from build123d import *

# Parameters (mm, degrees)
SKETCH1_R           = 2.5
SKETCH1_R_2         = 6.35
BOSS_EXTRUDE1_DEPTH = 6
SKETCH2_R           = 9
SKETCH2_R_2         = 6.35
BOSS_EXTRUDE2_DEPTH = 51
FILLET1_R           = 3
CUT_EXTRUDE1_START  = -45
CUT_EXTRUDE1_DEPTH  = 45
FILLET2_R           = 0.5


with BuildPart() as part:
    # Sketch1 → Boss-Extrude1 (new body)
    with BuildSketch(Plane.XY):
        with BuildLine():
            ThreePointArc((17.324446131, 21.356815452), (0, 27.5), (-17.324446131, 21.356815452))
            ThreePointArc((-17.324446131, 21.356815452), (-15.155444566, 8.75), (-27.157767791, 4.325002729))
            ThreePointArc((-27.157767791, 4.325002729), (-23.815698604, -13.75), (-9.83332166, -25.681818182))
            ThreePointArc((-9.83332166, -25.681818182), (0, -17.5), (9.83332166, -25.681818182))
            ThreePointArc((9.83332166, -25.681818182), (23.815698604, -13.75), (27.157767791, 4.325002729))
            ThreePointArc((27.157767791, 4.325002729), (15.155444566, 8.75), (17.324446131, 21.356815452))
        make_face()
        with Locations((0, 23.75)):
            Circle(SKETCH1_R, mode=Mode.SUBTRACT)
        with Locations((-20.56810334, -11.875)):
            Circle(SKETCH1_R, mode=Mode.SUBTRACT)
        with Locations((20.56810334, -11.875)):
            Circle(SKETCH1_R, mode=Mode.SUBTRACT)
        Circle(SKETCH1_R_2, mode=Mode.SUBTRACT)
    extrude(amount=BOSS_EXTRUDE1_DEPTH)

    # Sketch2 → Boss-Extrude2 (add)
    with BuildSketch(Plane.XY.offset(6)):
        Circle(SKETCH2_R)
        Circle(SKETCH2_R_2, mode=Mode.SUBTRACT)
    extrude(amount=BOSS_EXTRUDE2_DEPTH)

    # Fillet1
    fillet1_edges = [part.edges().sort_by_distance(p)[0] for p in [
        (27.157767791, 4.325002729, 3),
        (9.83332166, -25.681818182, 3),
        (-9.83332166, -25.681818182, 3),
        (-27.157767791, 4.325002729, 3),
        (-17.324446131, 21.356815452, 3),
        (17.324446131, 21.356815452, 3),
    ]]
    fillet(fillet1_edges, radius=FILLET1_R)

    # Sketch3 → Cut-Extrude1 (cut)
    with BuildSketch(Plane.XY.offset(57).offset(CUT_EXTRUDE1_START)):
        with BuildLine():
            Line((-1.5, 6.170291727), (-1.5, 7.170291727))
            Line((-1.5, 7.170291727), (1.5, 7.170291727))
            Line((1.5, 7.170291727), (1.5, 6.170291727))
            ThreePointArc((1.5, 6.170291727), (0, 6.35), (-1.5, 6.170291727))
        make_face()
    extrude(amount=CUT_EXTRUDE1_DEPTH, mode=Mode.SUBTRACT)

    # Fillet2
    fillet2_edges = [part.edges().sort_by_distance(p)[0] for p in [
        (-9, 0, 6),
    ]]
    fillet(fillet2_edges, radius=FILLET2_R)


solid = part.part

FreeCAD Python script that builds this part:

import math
import FreeCAD as App
import Part
import Sketcher
Q = App.Units.Quantity


def edges_at(feature, points):
    """Names of the edges that pass closest to the given points."""
    edges = feature.Shape.Edges
    near = lambda p: min(range(len(edges)), key=lambda i: edges[i].distToShape(Part.Vertex(*p))[0])
    return sorted({f"Edge{near(p) + 1}" for p in points})

doc = App.newDocument("Part")
params = doc.addObject("Spreadsheet::Sheet", "Params")
for row, (alias, value) in enumerate([
    ("sketch1_diameter", "5 mm"),
    ("sketch1_radius", "10 mm"),
    ("sketch1_diameter2", "12.7 mm"),
    ("sketch1_radius2", "27.5 mm"),
    ("pad1_length", "6 mm"),
    ("sketch2_diameter", "18 mm"),
    ("sketch2_diameter2", "12.7 mm"),
    ("pad2_length", "51 mm"),
    ("fillet_radius", "3 mm"),
    ("sketch3_width", "3 mm"),
    ("sketch3_height", "1 mm"),
    ("sketch3_radius", "6.35 mm"),
    ("pocket1_length", "45 mm"),
    ("fillet2_radius", "0.5 mm"),
], start=1):
    params.set(f"A{row}", alias)
    params.set(f"B{row}", "=" + value)
    params.setAlias(f"B{row}", alias)

body = doc.addObject("PartDesign::Body", "Body")

# Sketch on XY plane
sketch1 = doc.addObject("Sketcher::SketchObject", "Sketch")
body.addObject(sketch1)
sketch1.AttachmentSupport = (doc.XY_Plane, [""])
sketch1.MapMode = "FlatFace"
sketch1.addGeometry(Part.ArcOfCircle(Part.Circle(App.Vector(0, 0, 0), App.Vector(0, 0, 1), 27.5), math.radians(51), math.radians(129)), False)
sketch1.addGeometry(Part.ArcOfCircle(Part.Circle(App.Vector(-23.8, 13.7, 0), App.Vector(0, 0, 1), 10), math.radians(-110), math.radians(50)), False)
sketch1.addGeometry(Part.ArcOfCircle(Part.Circle(App.Vector(0, 0, 0), App.Vector(0, 0, 1), 27.5), math.radians(171), math.radians(249)), False)
sketch1.addGeometry(Part.ArcOfCircle(Part.Circle(App.Vector(0, -27.5, 0), App.Vector(0, 0, 1), 10), math.radians(10), math.radians(170)), False)
sketch1.addGeometry(Part.ArcOfCircle(Part.Circle(App.Vector(0, 0, 0), App.Vector(0, 0, 1), 27.5), math.radians(-69), math.radians(9)), False)
sketch1.addGeometry(Part.ArcOfCircle(Part.Circle(App.Vector(23.8, 13.7, 0), App.Vector(0, 0, 1), 10), math.radians(130), math.radians(290)), False)
sketch1.addGeometry(Part.Circle(App.Vector(-20.6, -11.9, 0), App.Vector(0, 0, 1), 2.5), False)
sketch1.addGeometry(Part.Circle(App.Vector(20.6, -11.9, 0), App.Vector(0, 0, 1), 2.5), False)
sketch1.addGeometry(Part.Circle(App.Vector(0, 0, 0), App.Vector(0, 0, 1), 6.3), False)
sketch1.addGeometry(Part.Circle(App.Vector(0, 23.8, 0), App.Vector(0, 0, 1), 2.5), False)
sketch1.addConstraint(Sketcher.Constraint("Coincident", 0, 2, 1, 2))
sketch1.addConstraint(Sketcher.Constraint("Coincident", 1, 1, 2, 1))
sketch1.addConstraint(Sketcher.Constraint("Coincident", 2, 2, 3, 2))
sketch1.addConstraint(Sketcher.Constraint("Coincident", 3, 1, 4, 1))
sketch1.addConstraint(Sketcher.Constraint("Coincident", 4, 2, 5, 2))
sketch1.addConstraint(Sketcher.Constraint("Coincident", 5, 1, 0, 1))
sketch1.addConstraint(Sketcher.Constraint("Coincident", 0, 3, -1, 1))
sketch1.addConstraint(Sketcher.Constraint("Coincident", 2, 3, -1, 1))
sketch1.addConstraint(Sketcher.Constraint("Coincident", 4, 3, -1, 1))
sketch1.addConstraint(Sketcher.Constraint("Coincident", 8, 3, -1, 1))
sketch1.addConstraint(Sketcher.Constraint("Equal", 0, 2))
sketch1.addConstraint(Sketcher.Constraint("Equal", 1, 3))
sketch1.addConstraint(Sketcher.Constraint("Equal", 2, 4))
sketch1.addConstraint(Sketcher.Constraint("Equal", 3, 5))
sketch1.addConstraint(Sketcher.Constraint("Equal", 6, 7))
sketch1.addConstraint(Sketcher.Constraint("Equal", 7, 9))
sketch1.addConstraint(Sketcher.Constraint("Symmetric", 1, 3, 5, 3, -2))
sketch1.addConstraint(Sketcher.Constraint("Symmetric", 6, 3, 7, 3, -2))
sketch1.addConstraint(Sketcher.Constraint("PointOnObject", 3, 3, -2))
sketch1.addConstraint(Sketcher.Constraint("PointOnObject", 9, 3, -2))
sketch1.addConstraint(Sketcher.Constraint("Diameter", 6, Q("5 mm")))
sketch1.addConstraint(Sketcher.Constraint("Radius", 1, Q("10 mm")))
sketch1.addConstraint(Sketcher.Constraint("Diameter", 8, Q("12.7 mm")))
sketch1.addConstraint(Sketcher.Constraint("Radius", 0, Q("27.5 mm")))
sketch1.addConstraint(Sketcher.Constraint("DistanceY", 1, 3, 9, 3, Q("10 mm")))
sketch1.addConstraint(Sketcher.Constraint("DistanceY", 3, 3, -1, 1, Q("27.5 mm")))
sketch1.addConstraint(Sketcher.Constraint("DistanceY", -1, 1, 1, 3, Q("13.75 mm")))
sketch1.addConstraint(Sketcher.Constraint("DistanceY", 6, 3, -1, 1, Q("11.875 mm")))
sketch1.addConstraint(Sketcher.Constraint("DistanceX", 1, 3, -1, 1, Q("23.815699 mm")))
sketch1.addConstraint(Sketcher.Constraint("DistanceX", 6, 3, 2, 2, Q("10.734782 mm")))
sketch1.setExpression("Constraints[20]", "Params.sketch1_diameter")
sketch1.setExpression("Constraints[21]", "Params.sketch1_radius")
sketch1.setExpression("Constraints[22]", "Params.sketch1_diameter2")
sketch1.setExpression("Constraints[23]", "Params.sketch1_radius2")
pad1 = doc.addObject("PartDesign::Pad", "Pad")
body.addObject(pad1)
pad1.Profile = sketch1
pad1.setExpression("Length", "Params.pad1_length")

# Sketch on XY plane
sketch2 = doc.addObject("Sketcher::SketchObject", "Sketch001")
body.addObject(sketch2)
sketch2.AttachmentSupport = (doc.XY_Plane, [""])
sketch2.MapMode = "FlatFace"
sketch2.AttachmentOffset = App.Placement(App.Vector(0, 0, 6), App.Rotation())
sketch2.addGeometry(Part.Circle(App.Vector(0, 0, 0), App.Vector(0, 0, 1), 9), False)
sketch2.addGeometry(Part.Circle(App.Vector(0, 0, 0), App.Vector(0, 0, 1), 6), False)
sketch2.addConstraint(Sketcher.Constraint("Coincident", 0, 3, -1, 1))
sketch2.addConstraint(Sketcher.Constraint("Coincident", 1, 3, -1, 1))
sketch2.addConstraint(Sketcher.Constraint("Diameter", 0, Q("18 mm")))
sketch2.addConstraint(Sketcher.Constraint("Diameter", 1, Q("12.7 mm")))
sketch2.setExpression("Constraints[2]", "Params.sketch2_diameter")
sketch2.setExpression("Constraints[3]", "Params.sketch2_diameter2")
pad2 = doc.addObject("PartDesign::Pad", "Pad001")
body.addObject(pad2)
pad2.Profile = sketch2
pad2.setExpression("Length", "Params.pad2_length")
doc.recompute()

fillet = doc.addObject("PartDesign::Fillet", "Fillet")
body.addObject(fillet)
fillet.Base = (pad2, edges_at(pad2, [
    (27.158, 4.325, 3),
    (9.833, -25.682, 3),
    (-9.833, -25.682, 3),
    (-27.158, 4.325, 3),
    (-17.324, 21.357, 3),
    (17.324, 21.357, 3),
]))
fillet.setExpression("Radius", "Params.fillet_radius")

# Sketch on XY plane
sketch3 = doc.addObject("Sketcher::SketchObject", "Sketch002")
body.addObject(sketch3)
sketch3.AttachmentSupport = (doc.XY_Plane, [""])
sketch3.MapMode = "FlatFace"
sketch3.AttachmentOffset = App.Placement(App.Vector(0, 0, 12), App.Rotation())
sketch3.addGeometry(Part.LineSegment(App.Vector(-1.5, 7.2, 0), App.Vector(-1.5, 6.2, 0)), False)
sketch3.addGeometry(Part.ArcOfCircle(Part.Circle(App.Vector(0, 0, 0), App.Vector(0, 0, 1), 6.3), math.radians(76), math.radians(104)), False)
sketch3.addGeometry(Part.LineSegment(App.Vector(1.5, 6.2, 0), App.Vector(1.5, 7.2, 0)), False)
sketch3.addGeometry(Part.LineSegment(App.Vector(1.5, 7.2, 0), App.Vector(-1.5, 7.2, 0)), False)
sketch3.addConstraint(Sketcher.Constraint("Coincident", 0, 2, 1, 2))
sketch3.addConstraint(Sketcher.Constraint("Coincident", 1, 1, 2, 1))
sketch3.addConstraint(Sketcher.Constraint("Coincident", 2, 2, 3, 1))
sketch3.addConstraint(Sketcher.Constraint("Coincident", 3, 2, 0, 1))
sketch3.addConstraint(Sketcher.Constraint("Vertical", 0))
sketch3.addConstraint(Sketcher.Constraint("Vertical", 2))
sketch3.addConstraint(Sketcher.Constraint("Horizontal", 3))
sketch3.addConstraint(Sketcher.Constraint("Coincident", 1, 3, -1, 1))
sketch3.addConstraint(Sketcher.Constraint("Horizontal", 0, 2, 1, 1))
sketch3.addConstraint(Sketcher.Constraint("DistanceX", 3, 2, 3, 1, Q("3 mm")))
sketch3.addConstraint(Sketcher.Constraint("DistanceY", 0, 2, 0, 1, Q("1 mm")))
sketch3.addConstraint(Sketcher.Constraint("Radius", 1, Q("6.35 mm")))
sketch3.setExpression("Constraints[9]", "Params.sketch3_width")
sketch3.setExpression("Constraints[10]", "Params.sketch3_height")
sketch3.setExpression("Constraints[11]", "Params.sketch3_radius")
pocket1 = doc.addObject("PartDesign::Pocket", "Pocket")
body.addObject(pocket1)
pocket1.Profile = sketch3
pocket1.setExpression("Length", "Params.pocket1_length")
pocket1.Reversed = True
doc.recompute()

fillet2 = doc.addObject("PartDesign::Fillet", "Fillet001")
body.addObject(fillet2)
fillet2.Base = (pocket1, edges_at(pocket1, [(-9, 0, 6)]))
fillet2.setExpression("Radius", "Params.fillet2_radius")

doc.recompute()
